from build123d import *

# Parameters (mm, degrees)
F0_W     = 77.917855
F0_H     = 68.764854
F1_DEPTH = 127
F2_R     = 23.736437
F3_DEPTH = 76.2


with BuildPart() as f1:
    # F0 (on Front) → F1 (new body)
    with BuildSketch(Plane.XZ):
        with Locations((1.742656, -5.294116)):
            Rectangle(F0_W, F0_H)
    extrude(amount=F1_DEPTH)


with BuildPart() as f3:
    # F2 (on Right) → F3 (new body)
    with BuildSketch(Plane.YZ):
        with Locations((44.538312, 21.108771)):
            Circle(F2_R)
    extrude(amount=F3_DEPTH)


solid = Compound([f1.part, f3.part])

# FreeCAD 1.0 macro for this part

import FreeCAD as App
import Part
import Sketcher
from FreeCAD import Vector
Q = App.Units.Quantity


def add_polygon(sketch, points):
    """Adds a closed chain of lines whose ends are joined by coincident constraints."""
    first, n = sketch.GeometryCount, len(points)
    for a, b in zip(points, points[1:] + points[:1]):
        sketch.addGeometry(Part.LineSegment(App.Vector(*a, 0), App.Vector(*b, 0)), False)
    for i in range(n):
        sketch.addConstraint(Sketcher.Constraint("Coincident", first + i, 2, first + (i + 1) % n, 1))

doc = App.newDocument("Part")
body = doc.addObject("PartDesign::Body", "Body")

# Sketch on XZ plane
sketch1 = body.newObject("Sketcher::SketchObject", "Sketch")
sketch1.AttachmentSupport = (doc.getObject("XZ_Plane"), [""])
sketch1.MapMode = "FlatFace"
add_polygon(sketch1, [(-37, 29), (-37, -40), (41, -40), (41, 29)])  # lines 0-3
sketch1.addConstraint(Sketcher.Constraint("Vertical", 0))
sketch1.addConstraint(Sketcher.Constraint("Horizontal", 1))
sketch1.addConstraint(Sketcher.Constraint("Vertical", 2))
sketch1.addConstraint(Sketcher.Constraint("Horizontal", 3))
sketch1.addConstraint(Sketcher.Constraint("DistanceX", 1, 1, 1, 2, 77.917855))
sketch1.addConstraint(Sketcher.Constraint("DistanceY", 0, 2, 0, 1, 68.764854))
sketch1.addConstraint(Sketcher.Constraint("DistanceX", 0, 2, -1, 1, 37.216271))
sketch1.addConstraint(Sketcher.Constraint("DistanceY", -1, 1, 2, 2, 29.088311))
pad1 = body.newObject("PartDesign::Pad", "Pad")
pad1.Profile = sketch1
pad1.Length = Q("5 in")
body2 = doc.addObject("PartDesign::Body", "Body001")

# Sketch on YZ plane
sketch2 = body2.newObject("Sketcher::SketchObject", "Sketch001")
sketch2.AttachmentSupport = (doc.getObject("YZ_Plane001"), [""])
sketch2.MapMode = "FlatFace"
sketch2.addGeometry(Part.Circle(Vector(45, 21, 0), Vector(0, 0, 1), 24), False)
sketch2.addConstraint(Sketcher.Constraint("Diameter", 0, 47.472874))
sketch2.addConstraint(Sketcher.Constraint("DistanceX", -1, 1, 0, 3, 44.538312))
sketch2.addConstraint(Sketcher.Constraint("DistanceY", -1, 1, 0, 3, 21.108771))
pad2 = body2.newObject("PartDesign::Pad", "Pad001")
pad2.Profile = sketch2
pad2.Length = Q("3 in")

doc.recompute()
